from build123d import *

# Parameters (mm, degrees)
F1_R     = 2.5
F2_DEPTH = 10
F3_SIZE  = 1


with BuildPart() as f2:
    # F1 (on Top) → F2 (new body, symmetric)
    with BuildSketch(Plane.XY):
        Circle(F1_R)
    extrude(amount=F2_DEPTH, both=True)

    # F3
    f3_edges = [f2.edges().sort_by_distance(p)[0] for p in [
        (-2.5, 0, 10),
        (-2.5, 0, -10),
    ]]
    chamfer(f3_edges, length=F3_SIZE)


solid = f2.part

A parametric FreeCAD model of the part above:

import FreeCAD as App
import Part
import Sketcher

V = App.Vector


def edges_at(feature, points):
    """Names of the edges that pass closest to the given points."""
    edges = feature.Shape.Edges
    near = lambda p: min(range(len(edges)), key=lambda i: edges[i].distToShape(Part.Vertex(*p))[0])
    return sorted({f"Edge{near(p) + 1}" for p in points})

doc = App.newDocument("Part")
body = doc.addObject("PartDesign::Body", "Body")

# Sketch on XY plane
sketch1 = doc.addObject("Sketcher::SketchObject", "Sketch")
body.addObject(sketch1)
sketch1.AttachmentSupport = (doc.XY_Plane, [""])
sketch1.MapMode = "FlatFace"
sketch1.addGeometry(Part.Circle(V(0, 0, 0), V(0, 0, 1), 2.5), False)
sketch1.addConstraint([
    Sketcher.Constraint("Coincident", 0, 3, -1, 1),
    Sketcher.Constraint("Diameter", 0, 5.0),
])
pad1 = doc.addObject("PartDesign::Pad", "Pad")
body.addObject(pad1)
pad1.Profile = sketch1
pad1.Length = 20
pad1.Midplane = True
doc.recompute()

chamfer = doc.addObject("PartDesign::Chamfer", "Chamfer")
body.addObject(chamfer)
chamfer.Base = (pad1, edges_at(pad1, [(-2.5, 0, 10), (-2.5, 0, -10)]))
chamfer.Size = 1

doc.recompute()
